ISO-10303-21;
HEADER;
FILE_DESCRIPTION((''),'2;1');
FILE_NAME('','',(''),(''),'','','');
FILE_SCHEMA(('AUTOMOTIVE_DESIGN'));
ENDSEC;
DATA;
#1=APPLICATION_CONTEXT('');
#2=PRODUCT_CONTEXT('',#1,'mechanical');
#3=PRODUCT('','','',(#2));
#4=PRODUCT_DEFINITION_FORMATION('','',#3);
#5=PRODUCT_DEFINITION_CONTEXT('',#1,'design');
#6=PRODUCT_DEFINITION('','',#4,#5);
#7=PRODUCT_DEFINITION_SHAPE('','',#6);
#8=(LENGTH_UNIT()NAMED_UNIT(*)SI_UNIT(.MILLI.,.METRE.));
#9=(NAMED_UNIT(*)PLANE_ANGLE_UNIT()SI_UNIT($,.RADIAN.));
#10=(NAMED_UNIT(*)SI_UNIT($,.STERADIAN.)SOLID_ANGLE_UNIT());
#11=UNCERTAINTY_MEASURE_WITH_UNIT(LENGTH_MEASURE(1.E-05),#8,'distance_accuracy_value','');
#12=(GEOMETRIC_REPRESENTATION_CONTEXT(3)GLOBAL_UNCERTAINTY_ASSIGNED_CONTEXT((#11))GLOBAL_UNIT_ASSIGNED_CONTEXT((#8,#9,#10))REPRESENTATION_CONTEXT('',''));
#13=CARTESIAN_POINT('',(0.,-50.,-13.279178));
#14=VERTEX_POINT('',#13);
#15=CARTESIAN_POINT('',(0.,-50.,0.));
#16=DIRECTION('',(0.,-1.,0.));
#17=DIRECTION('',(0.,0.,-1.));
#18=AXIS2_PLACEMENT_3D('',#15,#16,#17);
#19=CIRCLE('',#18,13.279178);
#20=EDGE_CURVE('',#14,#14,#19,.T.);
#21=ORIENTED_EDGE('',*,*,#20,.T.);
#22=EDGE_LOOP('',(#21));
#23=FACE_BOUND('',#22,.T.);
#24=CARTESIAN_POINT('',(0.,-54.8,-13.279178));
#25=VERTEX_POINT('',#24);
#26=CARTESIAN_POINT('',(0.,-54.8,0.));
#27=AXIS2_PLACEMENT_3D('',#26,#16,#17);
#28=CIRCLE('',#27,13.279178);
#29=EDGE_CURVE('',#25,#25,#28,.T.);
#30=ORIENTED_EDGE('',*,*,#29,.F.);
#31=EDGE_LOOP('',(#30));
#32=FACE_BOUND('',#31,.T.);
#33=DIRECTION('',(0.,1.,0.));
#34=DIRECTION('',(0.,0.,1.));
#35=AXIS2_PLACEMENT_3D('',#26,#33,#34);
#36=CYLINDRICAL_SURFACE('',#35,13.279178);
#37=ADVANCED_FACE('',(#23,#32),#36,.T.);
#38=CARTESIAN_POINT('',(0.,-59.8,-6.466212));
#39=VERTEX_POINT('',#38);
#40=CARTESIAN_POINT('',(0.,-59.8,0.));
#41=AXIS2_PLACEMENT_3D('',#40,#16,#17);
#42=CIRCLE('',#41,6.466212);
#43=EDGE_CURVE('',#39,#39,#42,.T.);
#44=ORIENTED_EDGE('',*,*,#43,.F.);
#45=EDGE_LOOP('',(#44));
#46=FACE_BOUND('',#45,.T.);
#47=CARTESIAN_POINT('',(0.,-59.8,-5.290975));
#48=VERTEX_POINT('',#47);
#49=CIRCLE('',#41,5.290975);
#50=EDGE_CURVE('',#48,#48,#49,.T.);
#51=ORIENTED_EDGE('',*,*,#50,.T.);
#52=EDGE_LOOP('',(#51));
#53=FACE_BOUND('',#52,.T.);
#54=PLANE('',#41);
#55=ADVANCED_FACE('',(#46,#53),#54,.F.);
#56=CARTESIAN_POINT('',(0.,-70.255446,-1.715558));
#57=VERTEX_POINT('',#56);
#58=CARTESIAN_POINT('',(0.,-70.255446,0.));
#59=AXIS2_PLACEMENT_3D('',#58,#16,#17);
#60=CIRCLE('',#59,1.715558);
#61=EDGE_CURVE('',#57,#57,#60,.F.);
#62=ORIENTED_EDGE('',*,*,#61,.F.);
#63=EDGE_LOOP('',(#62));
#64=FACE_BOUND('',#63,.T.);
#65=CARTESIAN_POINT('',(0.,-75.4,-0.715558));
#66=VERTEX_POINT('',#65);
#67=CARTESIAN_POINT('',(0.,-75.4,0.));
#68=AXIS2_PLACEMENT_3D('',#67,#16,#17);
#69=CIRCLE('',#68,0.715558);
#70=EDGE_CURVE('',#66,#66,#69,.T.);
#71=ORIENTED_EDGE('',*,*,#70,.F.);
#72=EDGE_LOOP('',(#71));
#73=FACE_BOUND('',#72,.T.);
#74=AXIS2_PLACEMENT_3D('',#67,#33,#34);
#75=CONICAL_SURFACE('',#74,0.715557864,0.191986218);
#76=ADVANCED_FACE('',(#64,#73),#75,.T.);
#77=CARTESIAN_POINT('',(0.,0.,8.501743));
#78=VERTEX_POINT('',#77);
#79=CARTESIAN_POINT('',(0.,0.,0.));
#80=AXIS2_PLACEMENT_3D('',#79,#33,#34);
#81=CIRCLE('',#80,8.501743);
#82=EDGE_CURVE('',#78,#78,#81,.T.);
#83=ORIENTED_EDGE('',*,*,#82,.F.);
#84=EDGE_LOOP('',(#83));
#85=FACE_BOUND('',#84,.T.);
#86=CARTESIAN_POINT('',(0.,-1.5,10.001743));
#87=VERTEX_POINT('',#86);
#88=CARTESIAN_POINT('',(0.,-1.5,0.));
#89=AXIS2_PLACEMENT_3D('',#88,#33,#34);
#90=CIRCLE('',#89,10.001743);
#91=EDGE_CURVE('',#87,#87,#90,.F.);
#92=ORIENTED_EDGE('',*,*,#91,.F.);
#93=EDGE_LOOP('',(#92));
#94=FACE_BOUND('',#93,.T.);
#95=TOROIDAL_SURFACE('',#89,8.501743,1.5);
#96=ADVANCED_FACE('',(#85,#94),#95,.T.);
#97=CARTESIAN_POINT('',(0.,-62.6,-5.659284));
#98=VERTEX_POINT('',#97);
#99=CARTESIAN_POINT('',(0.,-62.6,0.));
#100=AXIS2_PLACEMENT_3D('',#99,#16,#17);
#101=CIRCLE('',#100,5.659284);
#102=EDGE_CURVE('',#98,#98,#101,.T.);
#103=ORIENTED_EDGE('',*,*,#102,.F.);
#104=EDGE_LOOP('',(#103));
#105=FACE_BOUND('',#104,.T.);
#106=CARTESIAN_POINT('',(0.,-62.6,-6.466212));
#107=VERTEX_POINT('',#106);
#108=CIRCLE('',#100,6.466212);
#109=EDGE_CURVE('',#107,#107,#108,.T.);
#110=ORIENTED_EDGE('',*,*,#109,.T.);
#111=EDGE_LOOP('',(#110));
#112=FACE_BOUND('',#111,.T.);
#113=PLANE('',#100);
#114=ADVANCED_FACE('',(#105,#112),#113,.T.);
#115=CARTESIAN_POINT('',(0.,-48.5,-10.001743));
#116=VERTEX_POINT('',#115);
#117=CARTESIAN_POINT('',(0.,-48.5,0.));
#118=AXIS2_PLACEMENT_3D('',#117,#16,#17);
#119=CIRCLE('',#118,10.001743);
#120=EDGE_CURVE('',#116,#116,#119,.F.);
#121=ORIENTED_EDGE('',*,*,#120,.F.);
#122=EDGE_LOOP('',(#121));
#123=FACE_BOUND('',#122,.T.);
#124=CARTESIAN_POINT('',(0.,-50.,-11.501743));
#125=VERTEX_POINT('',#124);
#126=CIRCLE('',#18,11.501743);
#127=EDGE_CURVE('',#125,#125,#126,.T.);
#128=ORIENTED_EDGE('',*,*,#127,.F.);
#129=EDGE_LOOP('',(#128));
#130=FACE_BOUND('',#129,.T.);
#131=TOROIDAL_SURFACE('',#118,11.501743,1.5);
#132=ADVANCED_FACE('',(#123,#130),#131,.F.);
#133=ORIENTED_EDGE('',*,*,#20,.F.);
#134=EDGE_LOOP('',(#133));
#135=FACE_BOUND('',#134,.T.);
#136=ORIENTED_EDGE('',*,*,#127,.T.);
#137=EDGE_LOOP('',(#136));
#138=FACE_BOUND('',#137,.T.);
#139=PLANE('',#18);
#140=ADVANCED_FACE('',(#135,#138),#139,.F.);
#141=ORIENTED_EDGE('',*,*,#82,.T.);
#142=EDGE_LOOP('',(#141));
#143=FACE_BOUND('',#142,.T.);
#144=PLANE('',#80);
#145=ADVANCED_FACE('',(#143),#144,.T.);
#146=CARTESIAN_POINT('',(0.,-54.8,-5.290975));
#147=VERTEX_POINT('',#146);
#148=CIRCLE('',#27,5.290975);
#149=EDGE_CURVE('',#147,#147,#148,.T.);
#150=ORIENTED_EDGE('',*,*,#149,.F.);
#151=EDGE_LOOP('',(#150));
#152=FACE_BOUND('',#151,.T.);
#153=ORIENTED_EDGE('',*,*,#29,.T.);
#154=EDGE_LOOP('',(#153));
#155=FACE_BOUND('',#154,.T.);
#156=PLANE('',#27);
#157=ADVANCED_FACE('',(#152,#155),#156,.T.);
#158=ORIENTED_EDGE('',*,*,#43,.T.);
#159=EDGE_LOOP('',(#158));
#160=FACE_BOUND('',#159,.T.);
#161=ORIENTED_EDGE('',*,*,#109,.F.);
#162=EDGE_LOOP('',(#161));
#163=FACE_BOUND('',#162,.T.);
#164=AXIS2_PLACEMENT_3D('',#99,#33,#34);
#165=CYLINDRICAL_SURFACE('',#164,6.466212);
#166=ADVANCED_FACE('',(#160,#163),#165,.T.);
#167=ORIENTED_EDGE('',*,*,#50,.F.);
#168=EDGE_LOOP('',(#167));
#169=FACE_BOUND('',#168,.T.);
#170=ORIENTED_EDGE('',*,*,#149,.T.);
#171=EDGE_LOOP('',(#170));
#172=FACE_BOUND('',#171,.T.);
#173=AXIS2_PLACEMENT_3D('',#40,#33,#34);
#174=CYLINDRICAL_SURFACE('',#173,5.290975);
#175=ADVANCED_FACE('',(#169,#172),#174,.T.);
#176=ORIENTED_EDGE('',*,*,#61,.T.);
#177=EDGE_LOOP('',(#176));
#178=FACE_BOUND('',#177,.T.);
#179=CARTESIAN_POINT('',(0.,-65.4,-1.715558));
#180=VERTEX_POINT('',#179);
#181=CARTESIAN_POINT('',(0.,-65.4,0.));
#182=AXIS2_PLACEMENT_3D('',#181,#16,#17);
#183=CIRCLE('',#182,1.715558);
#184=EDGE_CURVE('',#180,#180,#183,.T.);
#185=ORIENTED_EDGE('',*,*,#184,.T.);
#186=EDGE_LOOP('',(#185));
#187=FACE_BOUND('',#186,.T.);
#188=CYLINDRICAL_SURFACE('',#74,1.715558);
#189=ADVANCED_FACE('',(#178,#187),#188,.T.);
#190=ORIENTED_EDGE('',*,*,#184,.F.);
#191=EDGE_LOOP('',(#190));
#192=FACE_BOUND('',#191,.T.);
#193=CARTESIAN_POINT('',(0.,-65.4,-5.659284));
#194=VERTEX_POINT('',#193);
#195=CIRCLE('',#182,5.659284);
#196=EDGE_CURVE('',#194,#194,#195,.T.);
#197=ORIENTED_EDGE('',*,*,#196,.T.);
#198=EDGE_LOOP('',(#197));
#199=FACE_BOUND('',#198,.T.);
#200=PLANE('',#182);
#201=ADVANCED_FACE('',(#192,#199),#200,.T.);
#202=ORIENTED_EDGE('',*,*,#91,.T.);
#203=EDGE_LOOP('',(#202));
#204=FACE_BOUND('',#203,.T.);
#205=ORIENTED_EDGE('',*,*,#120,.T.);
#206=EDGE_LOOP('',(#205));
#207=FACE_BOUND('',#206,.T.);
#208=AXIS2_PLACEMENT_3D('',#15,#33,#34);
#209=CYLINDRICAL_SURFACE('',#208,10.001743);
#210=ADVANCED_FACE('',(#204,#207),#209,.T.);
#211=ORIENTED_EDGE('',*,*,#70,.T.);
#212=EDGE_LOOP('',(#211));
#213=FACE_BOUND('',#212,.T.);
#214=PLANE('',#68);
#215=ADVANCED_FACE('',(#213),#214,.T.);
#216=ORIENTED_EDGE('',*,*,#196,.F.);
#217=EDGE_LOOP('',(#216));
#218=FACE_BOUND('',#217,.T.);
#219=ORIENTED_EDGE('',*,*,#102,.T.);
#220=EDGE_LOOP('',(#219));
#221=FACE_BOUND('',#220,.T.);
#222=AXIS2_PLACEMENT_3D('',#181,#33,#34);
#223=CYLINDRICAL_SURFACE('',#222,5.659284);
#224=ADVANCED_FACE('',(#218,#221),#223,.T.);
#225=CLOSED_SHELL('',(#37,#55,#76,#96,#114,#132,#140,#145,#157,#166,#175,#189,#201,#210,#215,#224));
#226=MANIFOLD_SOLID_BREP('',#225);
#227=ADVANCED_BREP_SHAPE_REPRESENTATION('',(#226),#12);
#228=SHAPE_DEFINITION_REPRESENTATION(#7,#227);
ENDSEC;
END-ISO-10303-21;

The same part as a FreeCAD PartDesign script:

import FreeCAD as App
import Part
import Sketcher


def edges_at(feature, points):
    """Names of the edges that pass closest to the given points."""
    edges = feature.Shape.Edges
    near = lambda p: min(range(len(edges)), key=lambda i: edges[i].distToShape(Part.Vertex(*p))[0])
    return sorted({f"Edge{near(p) + 1}" for p in points})

doc = App.newDocument("Part")
body = doc.addObject("PartDesign::Body", "Body")

# Sketch on XZ plane
sketch1 = doc.addObject("Sketcher::SketchObject", "Sketch")
body.addObject(sketch1)
sketch1.AttachmentSupport = (doc.XZ_Plane, [""])
sketch1.MapMode = "FlatFace"
sketch1.addGeometry(Part.Circle(App.Vector(0, 0, 0), App.Vector(0, 0, 1), 10.001743), False)
sketch1.addConstraint(Sketcher.Constraint("Coincident", 0, 3, -1, 1))
sketch1.addConstraint(Sketcher.Constraint("Diameter", 0, 20.003487))
pad1 = doc.addObject("PartDesign::Pad", "Pad")
body.addObject(pad1)
pad1.Profile = sketch1
pad1.Length = 50

# Sketch on XZ plane
sketch2 = doc.addObject("Sketcher::SketchObject", "Sketch001")
body.addObject(sketch2)
sketch2.AttachmentSupport = (doc.XZ_Plane, [""])
sketch2.MapMode = "FlatFace"
sketch2.AttachmentOffset = App.Placement(App.Vector(0, 0, 50), App.Rotation())
sketch2.addGeometry(Part.Circle(App.Vector(0, 0, 0), App.Vector(0, 0, 1), 13.279178), False)
sketch2.addConstraint(Sketcher.Constraint("Coincident", 0, 3, -1, 1))
sketch2.addConstraint(Sketcher.Constraint("Diameter", 0, 26.558355))
pad2 = doc.addObject("PartDesign::Pad", "Pad001")
body.addObject(pad2)
pad2.Profile = sketch2
pad2.Length = 4.8
doc.recompute()

fillet = doc.addObject("PartDesign::Fillet", "Fillet")
body.addObject(fillet)
fillet.Base = (pad2, edges_at(pad2, [(0, 0, -10.002), (0, -50, -10.002)]))
fillet.Radius = 1.5

# Sketch on XZ plane
sketch3 = doc.addObject("Sketcher::SketchObject", "Sketch002")
body.addObject(sketch3)
sketch3.AttachmentSupport = (doc.XZ_Plane, [""])
sketch3.MapMode = "FlatFace"
sketch3.AttachmentOffset = App.Placement(App.Vector(0, 0, 54.8), App.Rotation())
sketch3.addGeometry(Part.Circle(App.Vector(0, 0, 0), App.Vector(0, 0, 1), 5.290975), False)
sketch3.addConstraint(Sketcher.Constraint("Coincident", 0, 3, -1, 1))
sketch3.addConstraint(Sketcher.Constraint("Diameter", 0, 10.58195))
pad3 = doc.addObject("PartDesign::Pad", "Pad002")
body.addObject(pad3)
pad3.Profile = sketch3
pad3.Length = 5

# Sketch on XZ plane
sketch4 = doc.addObject("Sketcher::SketchObject", "Sketch003")
body.addObject(sketch4)
sketch4.AttachmentSupport = (doc.XZ_Plane, [""])
sketch4.MapMode = "FlatFace"
sketch4.AttachmentOffset = App.Placement(App.Vector(0, 0, 59.8), App.Rotation())
sketch4.addGeometry(Part.Circle(App.Vector(0, 0, 0), App.Vector(0, 0, 1), 6.466212), False)
sketch4.addConstraint(Sketcher.Constraint("Coincident", 0, 3, -1, 1))
sketch4.addConstraint(Sketcher.Constraint("Diameter", 0, 12.932423))
pad4 = doc.addObject("PartDesign::Pad", "Pad003")
body.addObject(pad4)
pad4.Profile = sketch4
pad4.Length = 2.8

# Sketch on XZ plane
sketch5 = doc.addObject("Sketcher::SketchObject", "Sketch004")
body.addObject(sketch5)
sketch5.AttachmentSupport = (doc.XZ_Plane, [""])
sketch5.MapMode = "FlatFace"
sketch5.AttachmentOffset = App.Placement(App.Vector(0, 0, 62.6), App.Rotation())
sketch5.addGeometry(Part.Circle(App.Vector(0, 0, 0), App.Vector(0, 0, 1), 5.659284), False)
sketch5.addConstraint(Sketcher.Constraint("Coincident", 0, 3, -1, 1))
sketch5.addConstraint(Sketcher.Constraint("Diameter", 0, 11.318568))
pad5 = doc.addObject("PartDesign::Pad", "Pad004")
body.addObject(pad5)
pad5.Profile = sketch5
pad5.Length = 2.8

# Sketch on XZ plane
sketch6 = doc.addObject("Sketcher::SketchObject", "Sketch005")
body.addObject(sketch6)
sketch6.AttachmentSupport = (doc.XZ_Plane, [""])
sketch6.MapMode = "FlatFace"
sketch6.AttachmentOffset = App.Placement(App.Vector(0, 0, 65.4), App.Rotation())
sketch6.addGeometry(Part.Circle(App.Vector(0, 0, 0), App.Vector(0, 0, 1), 1.715558), False)
sketch6.addConstraint(Sketcher.Constraint("Coincident", 0, 3, -1, 1))
sketch6.addConstraint(Sketcher.Constraint("Diameter", 0, 3.431116))
pad6 = doc.addObject("PartDesign::Pad", "Pad005")
body.addObject(pad6)
pad6.Profile = sketch6
pad6.Length = 10
doc.recompute()

chamfer = doc.addObject("PartDesign::Chamfer", "Chamfer")
body.addObject(chamfer)
chamfer.Base = (pad6, edges_at(pad6, [(0, -75.4, 1.716)]))
chamfer.ChamferType = "Two distances"
chamfer.Size = 1
chamfer.Size2 = 5.144554
chamfer.FlipDirection = True

doc.recompute()
